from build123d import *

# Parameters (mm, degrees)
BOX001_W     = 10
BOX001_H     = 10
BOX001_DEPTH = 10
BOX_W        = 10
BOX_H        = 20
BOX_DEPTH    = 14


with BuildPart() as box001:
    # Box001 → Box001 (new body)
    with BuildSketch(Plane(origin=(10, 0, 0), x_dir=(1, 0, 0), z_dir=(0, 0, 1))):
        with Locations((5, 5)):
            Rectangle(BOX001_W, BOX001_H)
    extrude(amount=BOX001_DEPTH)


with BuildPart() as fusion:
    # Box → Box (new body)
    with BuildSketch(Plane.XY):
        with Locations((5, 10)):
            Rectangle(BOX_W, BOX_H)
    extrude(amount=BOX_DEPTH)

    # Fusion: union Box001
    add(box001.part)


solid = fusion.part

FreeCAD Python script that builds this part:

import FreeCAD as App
import Part
import Sketcher


def add_polygon(sketch, points):
    """Adds a closed chain of lines whose ends are joined by coincident constraints."""
    first, n = sketch.GeometryCount, len(points)
    for a, b in zip(points, points[1:] + points[:1]):
        sketch.addGeometry(Part.LineSegment(App.Vector(*a, 0), App.Vector(*b, 0)), False)
    for i in range(n):
        sketch.addConstraint(Sketcher.Constraint("Coincident", first + i, 2, first + (i + 1) % n, 1))

doc = App.newDocument("Part")
params = doc.addObject("Spreadsheet::Sheet", "Params")
for row, (alias, value) in enumerate([
    ("sketch1_width", "10 mm"),
    ("pad1_length", "10 mm"),
    ("sketch2_width", "10 mm"),
    ("sketch2_height", "20 mm"),
    ("pad2_length", "14 mm"),
], start=1):
    params.set(f"A{row}", alias)
    params.set(f"B{row}", "=" + value)
    params.setAlias(f"B{row}", alias)

body = doc.addObject("PartDesign::Body", "Body")

sketch1 = body.newObject("Sketcher::SketchObject", "Sketch")
sketch1.AttachmentSupport = (doc.getObject("XY_Plane"), [""])
sketch1.MapMode = "FlatFace"
add_polygon(sketch1, [(10, 10), (10, 0), (20, 0), (20, 10)])
sketch1.addConstraint([
    Sketcher.Constraint("Vertical", 0),
    Sketcher.Constraint("Horizontal", 1),
    Sketcher.Constraint("Vertical", 2),
    Sketcher.Constraint("Horizontal", 3),
    Sketcher.Constraint("PointOnObject", 0, 2, -1),
    Sketcher.Constraint("Equal", 3, 0),
    Sketcher.Constraint("DistanceX", 1, 1, 1, 2, 10.0),
    Sketcher.Constraint("DistanceX", -1, 1, 0, 2, 10.0),
])
sketch1.setExpression("Constraints[10]", "Params.sketch1_width")
pad1 = body.newObject("PartDesign::Pad", "Pad")
pad1.Profile = sketch1
pad1.setExpression("Length", "Params.pad1_length")
body2 = doc.addObject("PartDesign::Body", "Body001")

sketch2 = body2.newObject("Sketcher::SketchObject", "Sketch001")
sketch2.AttachmentSupport = (doc.getObject("XY_Plane001"), [""])
sketch2.MapMode = "FlatFace"
add_polygon(sketch2, [(0, 20), (0, 0), (10, 0), (10, 20)])
sketch2.addConstraint([
    Sketcher.Constraint("Vertical", 0),
    Sketcher.Constraint("Horizontal", 1),
    Sketcher.Constraint("Vertical", 2),
    Sketcher.Constraint("Horizontal", 3),
    Sketcher.Constraint("Coincident", 0, 2, -1, 1),
    Sketcher.Constraint("DistanceX", 1, 1, 1, 2, 10.0),
    Sketcher.Constraint("DistanceY", 0, 2, 0, 1, 20.0),
])
sketch2.setExpression("Constraints[9]", "Params.sketch2_width")
sketch2.setExpression("Constraints[10]", "Params.sketch2_height")
pad2 = body2.newObject("PartDesign::Pad", "Pad001")
pad2.Profile = sketch2
pad2.setExpression("Length", "Params.pad2_length")
doc.recompute()

boolean = body2.newObject("PartDesign::Boolean", "Boolean")
boolean.Type = "Fuse"
boolean.addObjects([body])

doc.recompute()
